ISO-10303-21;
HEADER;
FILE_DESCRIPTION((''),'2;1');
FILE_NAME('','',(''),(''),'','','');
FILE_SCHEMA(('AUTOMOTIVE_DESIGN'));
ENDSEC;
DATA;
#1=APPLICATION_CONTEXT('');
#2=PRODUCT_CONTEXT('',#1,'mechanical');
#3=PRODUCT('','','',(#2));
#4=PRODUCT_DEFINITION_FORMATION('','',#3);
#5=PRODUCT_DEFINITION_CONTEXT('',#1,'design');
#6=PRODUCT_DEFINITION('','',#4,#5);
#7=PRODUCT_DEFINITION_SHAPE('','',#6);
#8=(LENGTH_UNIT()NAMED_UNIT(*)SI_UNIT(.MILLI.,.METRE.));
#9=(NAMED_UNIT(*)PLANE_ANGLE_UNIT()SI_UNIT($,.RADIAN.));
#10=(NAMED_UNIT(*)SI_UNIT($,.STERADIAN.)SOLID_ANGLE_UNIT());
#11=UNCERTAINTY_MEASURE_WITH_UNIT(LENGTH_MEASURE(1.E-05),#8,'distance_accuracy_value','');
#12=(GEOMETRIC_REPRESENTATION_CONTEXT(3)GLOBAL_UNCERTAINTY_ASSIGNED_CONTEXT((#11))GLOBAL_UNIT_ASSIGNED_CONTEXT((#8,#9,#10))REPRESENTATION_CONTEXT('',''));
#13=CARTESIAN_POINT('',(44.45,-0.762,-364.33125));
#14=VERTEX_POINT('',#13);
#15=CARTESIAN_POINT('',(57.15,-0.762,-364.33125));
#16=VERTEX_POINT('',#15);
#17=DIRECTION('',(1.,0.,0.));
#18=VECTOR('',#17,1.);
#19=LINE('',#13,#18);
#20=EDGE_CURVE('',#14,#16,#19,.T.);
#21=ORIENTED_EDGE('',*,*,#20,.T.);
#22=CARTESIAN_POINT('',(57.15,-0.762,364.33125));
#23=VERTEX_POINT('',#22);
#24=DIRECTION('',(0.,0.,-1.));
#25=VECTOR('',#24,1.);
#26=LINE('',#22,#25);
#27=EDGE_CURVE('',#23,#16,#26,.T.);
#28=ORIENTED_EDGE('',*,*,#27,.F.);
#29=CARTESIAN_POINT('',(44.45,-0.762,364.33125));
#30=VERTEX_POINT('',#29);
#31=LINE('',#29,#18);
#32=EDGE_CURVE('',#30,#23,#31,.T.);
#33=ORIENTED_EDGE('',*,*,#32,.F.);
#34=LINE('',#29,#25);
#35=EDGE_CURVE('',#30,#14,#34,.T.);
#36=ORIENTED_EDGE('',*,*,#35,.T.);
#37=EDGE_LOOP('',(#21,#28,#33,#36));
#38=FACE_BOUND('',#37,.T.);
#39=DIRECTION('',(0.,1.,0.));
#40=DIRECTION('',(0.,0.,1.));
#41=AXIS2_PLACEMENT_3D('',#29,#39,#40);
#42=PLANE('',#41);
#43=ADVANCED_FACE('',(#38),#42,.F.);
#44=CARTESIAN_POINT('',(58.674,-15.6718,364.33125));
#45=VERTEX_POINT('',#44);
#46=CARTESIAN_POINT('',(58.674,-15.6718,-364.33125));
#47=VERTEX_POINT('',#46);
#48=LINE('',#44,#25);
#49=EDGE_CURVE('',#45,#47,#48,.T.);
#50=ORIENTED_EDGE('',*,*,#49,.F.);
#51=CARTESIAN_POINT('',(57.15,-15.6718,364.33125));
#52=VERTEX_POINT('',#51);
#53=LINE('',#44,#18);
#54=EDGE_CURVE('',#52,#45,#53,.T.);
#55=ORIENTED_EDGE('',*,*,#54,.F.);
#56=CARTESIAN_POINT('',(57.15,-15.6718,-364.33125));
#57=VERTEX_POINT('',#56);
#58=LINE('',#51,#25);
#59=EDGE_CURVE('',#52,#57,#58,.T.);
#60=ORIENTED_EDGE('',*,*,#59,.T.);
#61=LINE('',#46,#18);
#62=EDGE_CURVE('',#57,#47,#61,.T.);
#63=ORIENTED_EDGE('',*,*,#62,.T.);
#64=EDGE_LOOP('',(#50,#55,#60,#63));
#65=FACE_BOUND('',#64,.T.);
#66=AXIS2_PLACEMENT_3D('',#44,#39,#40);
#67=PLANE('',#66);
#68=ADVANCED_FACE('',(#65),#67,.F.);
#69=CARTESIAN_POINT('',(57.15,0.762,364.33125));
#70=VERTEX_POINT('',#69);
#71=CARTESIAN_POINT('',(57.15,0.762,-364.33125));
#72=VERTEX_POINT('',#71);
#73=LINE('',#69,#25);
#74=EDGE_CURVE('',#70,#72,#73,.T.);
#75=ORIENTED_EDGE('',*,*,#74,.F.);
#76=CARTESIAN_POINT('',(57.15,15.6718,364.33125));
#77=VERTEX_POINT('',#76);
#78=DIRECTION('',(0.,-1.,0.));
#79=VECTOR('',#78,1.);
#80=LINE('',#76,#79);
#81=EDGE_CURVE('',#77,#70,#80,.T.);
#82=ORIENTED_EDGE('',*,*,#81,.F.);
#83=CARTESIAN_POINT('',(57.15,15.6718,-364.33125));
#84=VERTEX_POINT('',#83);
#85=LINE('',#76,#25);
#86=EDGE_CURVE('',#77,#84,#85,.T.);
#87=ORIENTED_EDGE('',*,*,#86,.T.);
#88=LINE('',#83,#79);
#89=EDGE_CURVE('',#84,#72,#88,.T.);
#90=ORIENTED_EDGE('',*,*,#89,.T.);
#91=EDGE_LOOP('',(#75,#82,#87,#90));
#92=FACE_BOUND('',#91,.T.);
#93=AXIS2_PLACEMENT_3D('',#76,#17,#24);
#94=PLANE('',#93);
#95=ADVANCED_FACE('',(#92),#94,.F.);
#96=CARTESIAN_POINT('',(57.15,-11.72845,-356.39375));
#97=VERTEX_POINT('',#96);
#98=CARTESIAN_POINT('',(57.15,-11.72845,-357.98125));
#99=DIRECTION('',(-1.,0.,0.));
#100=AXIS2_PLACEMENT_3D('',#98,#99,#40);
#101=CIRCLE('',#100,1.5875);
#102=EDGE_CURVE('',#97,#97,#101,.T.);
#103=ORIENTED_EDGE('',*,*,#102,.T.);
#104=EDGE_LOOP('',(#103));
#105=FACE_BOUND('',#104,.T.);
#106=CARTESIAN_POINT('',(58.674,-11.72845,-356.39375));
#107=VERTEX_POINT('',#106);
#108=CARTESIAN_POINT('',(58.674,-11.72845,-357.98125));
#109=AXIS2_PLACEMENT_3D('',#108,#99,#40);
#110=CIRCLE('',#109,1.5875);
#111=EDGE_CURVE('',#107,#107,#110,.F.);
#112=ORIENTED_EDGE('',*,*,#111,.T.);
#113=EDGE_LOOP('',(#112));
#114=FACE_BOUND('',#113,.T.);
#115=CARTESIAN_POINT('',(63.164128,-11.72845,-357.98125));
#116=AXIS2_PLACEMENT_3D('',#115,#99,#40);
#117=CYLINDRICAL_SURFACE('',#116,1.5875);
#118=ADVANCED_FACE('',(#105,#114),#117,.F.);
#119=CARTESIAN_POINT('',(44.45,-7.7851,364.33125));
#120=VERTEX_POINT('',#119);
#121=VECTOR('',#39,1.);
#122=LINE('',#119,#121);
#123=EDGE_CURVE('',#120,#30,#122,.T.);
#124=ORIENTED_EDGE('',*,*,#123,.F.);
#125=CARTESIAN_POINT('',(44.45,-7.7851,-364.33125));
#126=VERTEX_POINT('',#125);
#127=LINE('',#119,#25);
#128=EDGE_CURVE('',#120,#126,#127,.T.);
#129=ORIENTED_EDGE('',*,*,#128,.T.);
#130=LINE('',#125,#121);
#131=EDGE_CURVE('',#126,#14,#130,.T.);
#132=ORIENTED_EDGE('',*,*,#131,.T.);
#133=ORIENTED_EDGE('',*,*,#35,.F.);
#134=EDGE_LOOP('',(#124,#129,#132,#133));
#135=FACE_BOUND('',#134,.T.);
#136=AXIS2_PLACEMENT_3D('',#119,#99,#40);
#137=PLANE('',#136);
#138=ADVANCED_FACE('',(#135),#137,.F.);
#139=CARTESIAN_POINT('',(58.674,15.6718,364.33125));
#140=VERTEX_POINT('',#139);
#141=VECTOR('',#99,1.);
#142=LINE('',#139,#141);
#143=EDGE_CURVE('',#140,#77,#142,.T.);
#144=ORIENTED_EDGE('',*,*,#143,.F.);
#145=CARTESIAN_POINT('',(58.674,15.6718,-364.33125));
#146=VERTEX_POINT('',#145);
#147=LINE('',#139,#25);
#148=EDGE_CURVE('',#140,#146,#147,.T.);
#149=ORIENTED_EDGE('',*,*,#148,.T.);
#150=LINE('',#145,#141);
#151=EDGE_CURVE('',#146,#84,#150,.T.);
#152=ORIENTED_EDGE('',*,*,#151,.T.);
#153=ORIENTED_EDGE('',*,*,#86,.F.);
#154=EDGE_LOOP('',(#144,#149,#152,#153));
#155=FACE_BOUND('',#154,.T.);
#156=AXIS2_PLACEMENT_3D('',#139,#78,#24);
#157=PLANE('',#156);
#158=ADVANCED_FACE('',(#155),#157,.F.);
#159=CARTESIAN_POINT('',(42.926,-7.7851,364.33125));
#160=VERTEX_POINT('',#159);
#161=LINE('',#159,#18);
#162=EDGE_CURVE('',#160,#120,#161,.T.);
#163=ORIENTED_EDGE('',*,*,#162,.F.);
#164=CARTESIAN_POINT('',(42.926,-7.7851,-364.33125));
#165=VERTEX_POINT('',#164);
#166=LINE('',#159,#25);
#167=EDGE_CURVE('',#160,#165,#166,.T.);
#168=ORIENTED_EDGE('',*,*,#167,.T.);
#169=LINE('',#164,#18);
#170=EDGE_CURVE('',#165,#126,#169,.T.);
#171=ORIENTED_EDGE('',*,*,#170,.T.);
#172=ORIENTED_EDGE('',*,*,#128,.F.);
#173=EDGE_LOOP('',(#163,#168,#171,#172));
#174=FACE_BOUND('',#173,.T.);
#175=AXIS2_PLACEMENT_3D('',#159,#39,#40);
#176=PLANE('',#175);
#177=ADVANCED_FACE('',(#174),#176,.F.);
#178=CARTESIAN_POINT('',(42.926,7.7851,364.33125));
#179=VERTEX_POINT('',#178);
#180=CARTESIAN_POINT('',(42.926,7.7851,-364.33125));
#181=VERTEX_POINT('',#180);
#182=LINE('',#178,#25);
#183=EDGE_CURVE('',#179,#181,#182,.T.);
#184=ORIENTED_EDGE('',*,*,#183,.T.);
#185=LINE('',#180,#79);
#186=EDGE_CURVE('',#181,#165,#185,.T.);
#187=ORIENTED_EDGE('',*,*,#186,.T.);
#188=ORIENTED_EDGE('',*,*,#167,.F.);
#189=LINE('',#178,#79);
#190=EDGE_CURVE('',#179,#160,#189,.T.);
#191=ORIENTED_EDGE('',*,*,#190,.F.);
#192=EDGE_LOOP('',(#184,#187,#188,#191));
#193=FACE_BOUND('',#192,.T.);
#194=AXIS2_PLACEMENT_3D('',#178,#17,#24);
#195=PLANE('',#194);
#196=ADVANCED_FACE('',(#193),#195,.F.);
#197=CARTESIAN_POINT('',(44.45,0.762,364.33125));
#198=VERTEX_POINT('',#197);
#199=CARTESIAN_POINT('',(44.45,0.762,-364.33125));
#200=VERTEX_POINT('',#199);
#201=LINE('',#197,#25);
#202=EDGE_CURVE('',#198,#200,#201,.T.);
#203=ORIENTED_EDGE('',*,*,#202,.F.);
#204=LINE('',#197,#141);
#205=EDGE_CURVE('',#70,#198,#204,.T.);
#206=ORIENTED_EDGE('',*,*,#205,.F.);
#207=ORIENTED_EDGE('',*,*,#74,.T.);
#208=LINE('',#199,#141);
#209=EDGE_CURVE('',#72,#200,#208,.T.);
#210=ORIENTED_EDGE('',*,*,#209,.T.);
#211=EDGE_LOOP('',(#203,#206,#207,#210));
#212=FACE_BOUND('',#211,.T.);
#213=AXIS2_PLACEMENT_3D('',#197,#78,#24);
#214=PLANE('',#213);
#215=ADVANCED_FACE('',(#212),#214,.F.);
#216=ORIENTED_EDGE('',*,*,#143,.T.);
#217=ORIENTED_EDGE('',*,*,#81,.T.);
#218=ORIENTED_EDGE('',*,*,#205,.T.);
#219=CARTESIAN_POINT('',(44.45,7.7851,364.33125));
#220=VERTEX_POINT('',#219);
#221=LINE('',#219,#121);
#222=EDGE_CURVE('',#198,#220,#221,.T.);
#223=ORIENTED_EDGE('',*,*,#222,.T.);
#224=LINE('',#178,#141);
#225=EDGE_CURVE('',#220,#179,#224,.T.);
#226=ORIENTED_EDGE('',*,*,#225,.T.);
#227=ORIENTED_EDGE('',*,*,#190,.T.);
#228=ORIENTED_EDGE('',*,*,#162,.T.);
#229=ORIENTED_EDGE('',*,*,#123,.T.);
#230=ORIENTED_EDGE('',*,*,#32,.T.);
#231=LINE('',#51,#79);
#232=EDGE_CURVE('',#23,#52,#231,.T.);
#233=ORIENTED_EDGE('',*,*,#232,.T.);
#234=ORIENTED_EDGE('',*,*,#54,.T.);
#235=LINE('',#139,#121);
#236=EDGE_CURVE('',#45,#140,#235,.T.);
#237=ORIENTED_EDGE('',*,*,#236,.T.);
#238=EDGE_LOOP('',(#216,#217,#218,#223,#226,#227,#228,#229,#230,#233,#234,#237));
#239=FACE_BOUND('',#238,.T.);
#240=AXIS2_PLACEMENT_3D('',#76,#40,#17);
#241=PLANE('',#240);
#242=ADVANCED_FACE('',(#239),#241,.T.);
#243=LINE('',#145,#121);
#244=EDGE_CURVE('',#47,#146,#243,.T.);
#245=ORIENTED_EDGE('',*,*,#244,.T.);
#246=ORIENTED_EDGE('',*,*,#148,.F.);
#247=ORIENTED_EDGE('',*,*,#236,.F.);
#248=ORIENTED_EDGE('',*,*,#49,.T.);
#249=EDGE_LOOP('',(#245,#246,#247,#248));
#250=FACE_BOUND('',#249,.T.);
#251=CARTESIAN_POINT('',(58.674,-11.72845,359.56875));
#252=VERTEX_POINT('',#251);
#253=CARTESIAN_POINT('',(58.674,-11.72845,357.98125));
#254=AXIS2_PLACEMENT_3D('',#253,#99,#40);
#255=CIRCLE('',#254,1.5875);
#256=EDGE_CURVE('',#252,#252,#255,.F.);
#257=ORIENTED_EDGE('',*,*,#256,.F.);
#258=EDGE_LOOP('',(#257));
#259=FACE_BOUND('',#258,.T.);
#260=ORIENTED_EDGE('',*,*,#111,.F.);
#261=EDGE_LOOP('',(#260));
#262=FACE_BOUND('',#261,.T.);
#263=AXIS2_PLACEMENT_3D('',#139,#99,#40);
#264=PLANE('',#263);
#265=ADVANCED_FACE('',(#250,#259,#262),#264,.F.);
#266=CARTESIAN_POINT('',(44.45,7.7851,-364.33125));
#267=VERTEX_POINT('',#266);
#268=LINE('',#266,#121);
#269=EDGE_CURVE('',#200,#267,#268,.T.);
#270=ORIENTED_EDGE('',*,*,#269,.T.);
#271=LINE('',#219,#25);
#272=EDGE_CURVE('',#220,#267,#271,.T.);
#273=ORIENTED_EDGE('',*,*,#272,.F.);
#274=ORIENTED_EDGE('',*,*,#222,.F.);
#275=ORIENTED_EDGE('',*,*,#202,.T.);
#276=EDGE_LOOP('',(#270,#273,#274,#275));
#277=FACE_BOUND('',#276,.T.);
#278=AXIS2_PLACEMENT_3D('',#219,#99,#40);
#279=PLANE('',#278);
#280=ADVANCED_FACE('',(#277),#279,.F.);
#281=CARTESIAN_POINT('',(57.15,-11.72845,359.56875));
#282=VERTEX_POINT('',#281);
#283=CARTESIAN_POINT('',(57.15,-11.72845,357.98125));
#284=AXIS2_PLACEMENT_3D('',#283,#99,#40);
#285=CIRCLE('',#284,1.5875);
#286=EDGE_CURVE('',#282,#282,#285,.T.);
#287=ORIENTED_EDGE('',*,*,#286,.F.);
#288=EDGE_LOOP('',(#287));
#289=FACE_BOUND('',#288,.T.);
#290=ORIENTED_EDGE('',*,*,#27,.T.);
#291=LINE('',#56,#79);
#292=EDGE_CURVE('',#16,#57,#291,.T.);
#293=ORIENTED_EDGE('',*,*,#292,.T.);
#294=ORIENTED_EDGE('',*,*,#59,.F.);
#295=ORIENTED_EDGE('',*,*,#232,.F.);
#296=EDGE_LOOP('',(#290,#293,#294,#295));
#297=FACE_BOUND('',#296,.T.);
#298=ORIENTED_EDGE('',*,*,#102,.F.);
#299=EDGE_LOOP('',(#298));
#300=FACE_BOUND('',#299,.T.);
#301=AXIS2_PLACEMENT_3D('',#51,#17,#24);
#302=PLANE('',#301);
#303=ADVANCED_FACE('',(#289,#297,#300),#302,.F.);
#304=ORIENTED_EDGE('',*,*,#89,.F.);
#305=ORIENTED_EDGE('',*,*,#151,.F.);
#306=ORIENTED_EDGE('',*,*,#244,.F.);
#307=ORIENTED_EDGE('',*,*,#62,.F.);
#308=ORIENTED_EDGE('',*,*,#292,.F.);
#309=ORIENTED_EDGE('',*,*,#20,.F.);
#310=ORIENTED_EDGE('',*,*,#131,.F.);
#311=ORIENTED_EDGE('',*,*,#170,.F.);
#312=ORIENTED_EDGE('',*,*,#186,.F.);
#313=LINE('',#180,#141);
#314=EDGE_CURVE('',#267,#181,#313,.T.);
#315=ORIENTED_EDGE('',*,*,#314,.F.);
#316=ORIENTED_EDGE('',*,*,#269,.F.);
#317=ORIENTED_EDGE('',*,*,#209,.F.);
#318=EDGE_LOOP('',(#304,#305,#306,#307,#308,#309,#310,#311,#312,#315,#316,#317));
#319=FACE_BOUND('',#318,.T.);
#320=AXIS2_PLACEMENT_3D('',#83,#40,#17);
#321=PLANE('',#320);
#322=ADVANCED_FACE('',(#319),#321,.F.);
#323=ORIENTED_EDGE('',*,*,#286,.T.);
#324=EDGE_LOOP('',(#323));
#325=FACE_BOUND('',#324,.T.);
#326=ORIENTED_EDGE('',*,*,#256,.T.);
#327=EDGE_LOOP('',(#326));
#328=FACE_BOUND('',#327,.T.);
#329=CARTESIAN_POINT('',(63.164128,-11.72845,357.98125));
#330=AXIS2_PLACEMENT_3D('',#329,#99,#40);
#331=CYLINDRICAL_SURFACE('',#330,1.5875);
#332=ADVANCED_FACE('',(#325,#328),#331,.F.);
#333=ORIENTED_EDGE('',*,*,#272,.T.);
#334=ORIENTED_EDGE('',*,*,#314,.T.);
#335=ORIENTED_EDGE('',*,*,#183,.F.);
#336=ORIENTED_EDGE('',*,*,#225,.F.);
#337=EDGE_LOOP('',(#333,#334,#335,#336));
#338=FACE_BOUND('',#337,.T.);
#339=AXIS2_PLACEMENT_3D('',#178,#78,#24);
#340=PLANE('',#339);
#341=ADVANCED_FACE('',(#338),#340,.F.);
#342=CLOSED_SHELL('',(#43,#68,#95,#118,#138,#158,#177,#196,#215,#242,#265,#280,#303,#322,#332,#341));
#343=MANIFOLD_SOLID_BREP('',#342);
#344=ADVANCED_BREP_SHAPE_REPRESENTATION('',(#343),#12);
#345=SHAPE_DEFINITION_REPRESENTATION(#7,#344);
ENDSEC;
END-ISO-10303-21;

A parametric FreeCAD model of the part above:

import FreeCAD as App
import Part
import Sketcher

V = App.Vector
Q = App.Units.Quantity

doc = App.newDocument("Part")
body = doc.addObject("PartDesign::Body", "Body")

# Sketch on XY plane
sketch1 = doc.addObject("Sketcher::SketchObject", "Sketch")
body.addObject(sketch1)
sketch1.AttachmentSupport = (doc.XY_Plane, [""])
sketch1.MapMode = "FlatFace"
sketch1.addGeometry(Part.LineSegment(V(58.7, -15.7, 0), V(58.7, 15.7, 0)), False)
sketch1.addGeometry(Part.LineSegment(V(58.7, 15.7, 0), V(57.1, 15.7, 0)), False)
sketch1.addGeometry(Part.LineSegment(V(57.1, 15.7, 0), V(57.1, 0.8, 0)), False)
sketch1.addGeometry(Part.LineSegment(V(57.1, 0.8, 0), V(44.5, 0.8, 0)), False)
sketch1.addGeometry(Part.LineSegment(V(44.5, 0.8, 0), V(44.5, 7.8, 0)), False)
sketch1.addGeometry(Part.LineSegment(V(44.5, 7.8, 0), V(42.9, 7.8, 0)), False)
sketch1.addGeometry(Part.LineSegment(V(42.9, 7.8, 0), V(42.9, -7.8, 0)), False)
sketch1.addGeometry(Part.LineSegment(V(42.9, -7.8, 0), V(44.5, -7.8, 0)), False)
sketch1.addGeometry(Part.LineSegment(V(44.5, -7.8, 0), V(44.5, -0.8, 0)), False)
sketch1.addGeometry(Part.LineSegment(V(44.5, -0.8, 0), V(57.1, -0.8, 0)), False)
sketch1.addGeometry(Part.LineSegment(V(57.1, -0.8, 0), V(57.1, -15.7, 0)), False)
sketch1.addGeometry(Part.LineSegment(V(57.1, -15.7, 0), V(58.7, -15.7, 0)), False)
sketch1.addConstraint(Sketcher.Constraint("Coincident", 0, 2, 1, 1))
sketch1.addConstraint(Sketcher.Constraint("Coincident", 1, 2, 2, 1))
sketch1.addConstraint(Sketcher.Constraint("Coincident", 2, 2, 3, 1))
sketch1.addConstraint(Sketcher.Constraint("Coincident", 3, 2, 4, 1))
sketch1.addConstraint(Sketcher.Constraint("Coincident", 4, 2, 5, 1))
sketch1.addConstraint(Sketcher.Constraint("Coincident", 5, 2, 6, 1))
sketch1.addConstraint(Sketcher.Constraint("Coincident", 6, 2, 7, 1))
sketch1.addConstraint(Sketcher.Constraint("Coincident", 7, 2, 8, 1))
sketch1.addConstraint(Sketcher.Constraint("Coincident", 8, 2, 9, 1))
sketch1.addConstraint(Sketcher.Constraint("Coincident", 9, 2, 10, 1))
sketch1.addConstraint(Sketcher.Constraint("Coincident", 10, 2, 11, 1))
sketch1.addConstraint(Sketcher.Constraint("Coincident", 11, 2, 0, 1))
sketch1.addConstraint(Sketcher.Constraint("Vertical", 0))
sketch1.addConstraint(Sketcher.Constraint("Horizontal", 1))
sketch1.addConstraint(Sketcher.Constraint("Vertical", 2))
sketch1.addConstraint(Sketcher.Constraint("Horizontal", 3))
sketch1.addConstraint(Sketcher.Constraint("Vertical", 4))
sketch1.addConstraint(Sketcher.Constraint("Horizontal", 5))
sketch1.addConstraint(Sketcher.Constraint("Vertical", 6))
sketch1.addConstraint(Sketcher.Constraint("Horizontal", 7))
sketch1.addConstraint(Sketcher.Constraint("Vertical", 8))
sketch1.addConstraint(Sketcher.Constraint("Horizontal", 9))
sketch1.addConstraint(Sketcher.Constraint("Vertical", 10))
sketch1.addConstraint(Sketcher.Constraint("Horizontal", 11))
sketch1.addConstraint(Sketcher.Constraint("Symmetric", 4, 2, 7, 2, -1))
sketch1.addConstraint(Sketcher.Constraint("Symmetric", 2, 2, 9, 2, -1))
sketch1.addConstraint(Sketcher.Constraint("Equal", 1, 5))
sketch1.addConstraint(Sketcher.Constraint("Equal", 2, 10))
sketch1.addConstraint(Sketcher.Constraint("DistanceX", 3, 2, 3, 1, Q("0.5 in")))
sketch1.addConstraint(Sketcher.Constraint("DistanceX", 1, 2, 1, 1, Q("0.06 in")))
sketch1.addConstraint(Sketcher.Constraint("DistanceY", 0, 1, 0, 2, Q("1.234 in")))
sketch1.addConstraint(Sketcher.Constraint("DistanceY", 2, 2, 2, 1, Q("0.587 in")))
sketch1.addConstraint(Sketcher.Constraint("DistanceY", 6, 2, 6, 1, Q("0.613 in")))
sketch1.addConstraint(Sketcher.Constraint("DistanceX", -1, 1, 0, 2, Q("2.31 in")))
pad1 = doc.addObject("PartDesign::Pad", "Pad")
body.addObject(pad1)
pad1.Profile = sketch1
pad1.Length = Q("28.6875 in")
pad1.Midplane = True

# Sketch on YZ plane
sketch2 = doc.addObject("Sketcher::SketchObject", "Sketch001")
body.addObject(sketch2)
sketch2.AttachmentSupport = (doc.YZ_Plane, [""])
sketch2.MapMode = "FlatFace"
sketch2.AttachmentOffset = App.Placement(V(0, 0, 2.25 * 25.4), App.Rotation())
sketch2.addGeometry(Part.Circle(V(-11.7, 358, 0), V(0, 0, 1), 1.6), False)
sketch2.addGeometry(Part.Circle(V(-11.7, -358, 0), V(0, 0, 1), 1.6), False)
sketch2.addConstraint(Sketcher.Constraint("Equal", 0, 1))
sketch2.addConstraint(Sketcher.Constraint("Symmetric", 0, 3, 1, 3, -1))
sketch2.addConstraint(Sketcher.Constraint("Diameter", 0, Q("0.125 in")))
sketch2.addConstraint(Sketcher.Constraint("DistanceY", -1, 1, 0, 3, Q("14.09375 in")))
sketch2.addConstraint(Sketcher.Constraint("DistanceX", 0, 3, -1, 1, Q("11.72845 mm")))
pocket1 = doc.addObject("PartDesign::Pocket", "Pocket")
body.addObject(pocket1)
pocket1.Profile = sketch2
pocket1.Length = Q("0.06 in")
pocket1.Reversed = True

doc.recompute()
